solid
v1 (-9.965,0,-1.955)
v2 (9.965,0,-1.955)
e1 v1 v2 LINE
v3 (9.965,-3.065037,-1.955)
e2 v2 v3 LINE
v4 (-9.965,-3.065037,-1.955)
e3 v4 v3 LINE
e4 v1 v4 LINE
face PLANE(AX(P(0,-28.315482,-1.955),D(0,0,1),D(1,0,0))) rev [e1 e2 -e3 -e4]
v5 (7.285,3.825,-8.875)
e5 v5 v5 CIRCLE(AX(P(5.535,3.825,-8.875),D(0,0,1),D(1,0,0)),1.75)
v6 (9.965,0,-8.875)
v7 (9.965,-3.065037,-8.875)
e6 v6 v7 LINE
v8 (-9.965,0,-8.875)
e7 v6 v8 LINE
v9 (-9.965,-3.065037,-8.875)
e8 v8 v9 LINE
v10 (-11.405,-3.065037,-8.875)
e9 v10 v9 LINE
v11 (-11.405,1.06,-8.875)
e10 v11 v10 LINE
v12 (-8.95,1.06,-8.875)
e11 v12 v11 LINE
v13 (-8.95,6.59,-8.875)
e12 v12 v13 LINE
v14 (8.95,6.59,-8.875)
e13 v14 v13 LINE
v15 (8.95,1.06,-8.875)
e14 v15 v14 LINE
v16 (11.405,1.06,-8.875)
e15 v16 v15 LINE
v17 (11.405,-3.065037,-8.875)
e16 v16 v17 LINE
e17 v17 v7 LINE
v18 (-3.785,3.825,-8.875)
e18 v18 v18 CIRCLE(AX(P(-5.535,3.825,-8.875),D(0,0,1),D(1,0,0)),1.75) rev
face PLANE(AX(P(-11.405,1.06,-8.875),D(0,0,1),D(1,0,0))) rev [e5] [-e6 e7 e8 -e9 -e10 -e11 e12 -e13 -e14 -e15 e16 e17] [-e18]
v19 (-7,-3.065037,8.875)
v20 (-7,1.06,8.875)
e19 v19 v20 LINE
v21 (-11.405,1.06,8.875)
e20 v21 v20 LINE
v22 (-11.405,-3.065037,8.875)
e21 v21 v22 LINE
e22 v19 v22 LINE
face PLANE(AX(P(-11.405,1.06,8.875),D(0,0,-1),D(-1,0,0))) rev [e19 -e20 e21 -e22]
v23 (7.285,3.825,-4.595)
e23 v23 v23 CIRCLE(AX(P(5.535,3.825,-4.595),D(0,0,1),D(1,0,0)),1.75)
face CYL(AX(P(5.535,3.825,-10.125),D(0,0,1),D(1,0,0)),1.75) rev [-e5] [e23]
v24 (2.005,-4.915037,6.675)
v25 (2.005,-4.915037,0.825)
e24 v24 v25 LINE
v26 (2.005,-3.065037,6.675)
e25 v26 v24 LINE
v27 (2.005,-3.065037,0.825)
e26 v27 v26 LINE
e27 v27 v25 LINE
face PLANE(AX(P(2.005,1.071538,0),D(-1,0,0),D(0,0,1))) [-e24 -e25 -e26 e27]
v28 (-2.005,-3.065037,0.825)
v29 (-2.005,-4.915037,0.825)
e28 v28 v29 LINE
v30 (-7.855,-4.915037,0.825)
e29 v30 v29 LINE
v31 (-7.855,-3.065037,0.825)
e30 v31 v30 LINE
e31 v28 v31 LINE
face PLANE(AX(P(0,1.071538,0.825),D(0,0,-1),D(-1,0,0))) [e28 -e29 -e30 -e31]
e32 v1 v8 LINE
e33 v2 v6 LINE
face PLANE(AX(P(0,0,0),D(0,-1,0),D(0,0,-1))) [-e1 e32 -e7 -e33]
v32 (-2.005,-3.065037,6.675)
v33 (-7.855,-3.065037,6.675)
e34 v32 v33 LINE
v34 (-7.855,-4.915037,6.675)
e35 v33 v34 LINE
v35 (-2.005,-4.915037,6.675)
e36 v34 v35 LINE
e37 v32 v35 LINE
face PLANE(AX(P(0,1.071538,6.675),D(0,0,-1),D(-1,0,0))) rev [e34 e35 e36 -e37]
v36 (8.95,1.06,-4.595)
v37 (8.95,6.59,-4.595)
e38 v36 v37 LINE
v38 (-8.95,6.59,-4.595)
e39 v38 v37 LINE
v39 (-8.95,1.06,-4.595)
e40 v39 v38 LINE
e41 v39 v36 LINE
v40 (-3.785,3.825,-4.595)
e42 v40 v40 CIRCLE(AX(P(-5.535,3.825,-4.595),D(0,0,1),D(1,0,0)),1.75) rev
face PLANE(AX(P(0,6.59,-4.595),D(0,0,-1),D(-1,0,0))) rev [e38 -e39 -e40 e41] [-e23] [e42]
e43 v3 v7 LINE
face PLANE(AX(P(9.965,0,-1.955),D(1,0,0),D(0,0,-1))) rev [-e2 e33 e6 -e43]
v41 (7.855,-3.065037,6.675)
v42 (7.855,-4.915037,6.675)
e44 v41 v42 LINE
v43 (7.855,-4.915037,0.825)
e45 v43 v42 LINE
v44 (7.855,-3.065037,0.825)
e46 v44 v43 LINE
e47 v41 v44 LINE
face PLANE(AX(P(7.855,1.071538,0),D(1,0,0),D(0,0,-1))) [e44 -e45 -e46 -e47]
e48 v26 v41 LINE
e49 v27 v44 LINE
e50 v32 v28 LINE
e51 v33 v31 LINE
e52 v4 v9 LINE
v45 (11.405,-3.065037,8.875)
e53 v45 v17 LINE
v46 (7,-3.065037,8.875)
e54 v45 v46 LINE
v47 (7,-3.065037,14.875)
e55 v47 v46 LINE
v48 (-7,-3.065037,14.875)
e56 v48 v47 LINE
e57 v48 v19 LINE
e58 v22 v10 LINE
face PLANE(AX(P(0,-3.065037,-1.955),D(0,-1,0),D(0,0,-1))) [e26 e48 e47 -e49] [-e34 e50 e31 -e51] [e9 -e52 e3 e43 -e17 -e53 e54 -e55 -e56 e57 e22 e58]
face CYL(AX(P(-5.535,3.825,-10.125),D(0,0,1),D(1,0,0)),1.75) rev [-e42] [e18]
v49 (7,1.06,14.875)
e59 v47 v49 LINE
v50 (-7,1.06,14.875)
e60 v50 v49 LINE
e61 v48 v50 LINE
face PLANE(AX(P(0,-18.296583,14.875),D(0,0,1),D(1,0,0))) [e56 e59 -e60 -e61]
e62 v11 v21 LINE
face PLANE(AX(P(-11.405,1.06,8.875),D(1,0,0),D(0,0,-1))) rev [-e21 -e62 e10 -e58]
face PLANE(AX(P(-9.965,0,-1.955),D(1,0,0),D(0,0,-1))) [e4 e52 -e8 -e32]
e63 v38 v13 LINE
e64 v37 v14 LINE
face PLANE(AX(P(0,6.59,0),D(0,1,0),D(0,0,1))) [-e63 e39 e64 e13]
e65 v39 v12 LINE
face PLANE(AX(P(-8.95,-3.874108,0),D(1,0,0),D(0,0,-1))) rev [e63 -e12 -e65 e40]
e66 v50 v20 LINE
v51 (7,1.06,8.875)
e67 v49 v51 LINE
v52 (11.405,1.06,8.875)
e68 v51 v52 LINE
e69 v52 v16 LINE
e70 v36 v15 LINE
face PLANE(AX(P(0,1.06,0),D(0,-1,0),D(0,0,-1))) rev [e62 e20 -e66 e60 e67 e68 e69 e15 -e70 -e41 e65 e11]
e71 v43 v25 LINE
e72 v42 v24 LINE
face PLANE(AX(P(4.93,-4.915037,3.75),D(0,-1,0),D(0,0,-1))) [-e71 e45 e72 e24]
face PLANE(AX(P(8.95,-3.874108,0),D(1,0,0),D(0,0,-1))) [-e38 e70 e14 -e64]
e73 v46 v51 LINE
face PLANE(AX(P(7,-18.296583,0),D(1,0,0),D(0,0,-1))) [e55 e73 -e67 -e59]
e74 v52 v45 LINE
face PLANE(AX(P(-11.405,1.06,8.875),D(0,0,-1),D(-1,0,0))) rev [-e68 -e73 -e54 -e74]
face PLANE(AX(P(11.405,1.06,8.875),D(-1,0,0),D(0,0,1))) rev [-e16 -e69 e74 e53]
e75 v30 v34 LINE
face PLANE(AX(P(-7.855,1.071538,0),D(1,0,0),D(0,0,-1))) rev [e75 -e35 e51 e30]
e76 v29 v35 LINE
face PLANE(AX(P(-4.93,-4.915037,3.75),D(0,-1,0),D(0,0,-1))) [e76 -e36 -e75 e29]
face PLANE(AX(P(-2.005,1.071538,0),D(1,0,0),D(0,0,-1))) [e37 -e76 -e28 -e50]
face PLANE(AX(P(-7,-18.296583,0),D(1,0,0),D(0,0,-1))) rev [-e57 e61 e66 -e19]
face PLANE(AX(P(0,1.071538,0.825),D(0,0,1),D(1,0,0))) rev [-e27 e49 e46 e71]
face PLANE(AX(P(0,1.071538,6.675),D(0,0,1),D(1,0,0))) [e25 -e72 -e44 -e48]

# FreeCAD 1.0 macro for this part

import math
import FreeCAD as App
import Part
import Sketcher

V = App.Vector
Q = App.Units.Quantity

doc = App.newDocument("Part")
body = doc.addObject("PartDesign::Body", "Body")

sketch1 = body.newObject("Sketcher::SketchObject", "Sketch")
sketch1.AttachmentSupport = (doc.getObject("XZ_Plane"), [""])
sketch1.MapMode = "FlatFace"
sketch1.addGeometry([
    Part.LineSegment(V(-11.405, -8.875, 0), V(-11.405, 8.875, 0)),
    Part.LineSegment(V(-11.405, 8.875, 0), V(11.405, 8.875, 0)),
    Part.LineSegment(V(11.405, 8.875, 0), V(11.405, -8.875, 0)),
    Part.LineSegment(V(11.405, -8.875, 0), V(-11.405, -8.875, 0)),
], False)
sketch1.addConstraint([
    Sketcher.Constraint("Coincident", 0, 2, 1, 1),
    Sketcher.Constraint("Coincident", 1, 2, 2, 1),
    Sketcher.Constraint("Coincident", 2, 2, 3, 1),
    Sketcher.Constraint("Coincident", 3, 2, 0, 1),
    Sketcher.Constraint("Vertical", 0),
    Sketcher.Constraint("Horizontal", 1),
    Sketcher.Constraint("Vertical", 2),
    Sketcher.Constraint("Horizontal", 3),
    Sketcher.Constraint("Symmetric", 0, 2, 2, 2, -1, 1),
    Sketcher.Constraint("DistanceX", 1, 1, 1, 2, Q("22.81 mm")),
    Sketcher.Constraint("DistanceY", 0, 1, 0, 2, Q("17.75 mm")),
])
pad1 = body.newObject("PartDesign::Pad", "Pad")
pad1.Profile = sketch1
pad1.Length = 1.06
pad1.Reversed = True

sketch2 = body.newObject("Sketcher::SketchObject", "Sketch001")
sketch2.AttachmentSupport = (doc.getObject("XY_Plane"), [""])
sketch2.MapMode = "FlatFace"
sketch2.AttachmentOffset = App.Placement(V(0, 0, -8.875), App.Rotation())
sketch2.addGeometry([
    Part.LineSegment(V(11.405, 0, 0), V(11.405, -3.065037, 0)),
    Part.LineSegment(V(11.405, -3.065037, 0), V(9.965, -3.065037, 0)),
    Part.LineSegment(V(9.965, -3.065037, 0), V(9.965, 0, 0)),
    Part.LineSegment(V(9.965, 0, 0), V(11.405, 0, 0)),
    Part.LineSegment(V(-9.965, 0, 0), V(-9.965, -3.065037, 0)),
    Part.LineSegment(V(-9.965, -3.065037, 0), V(-11.405, -3.065037, 0)),
    Part.LineSegment(V(-11.405, -3.065037, 0), V(-11.405, 0, 0)),
    Part.LineSegment(V(-11.405, 0, 0), V(-9.965, 0, 0)),
], False)
sketch2.addConstraint([
    Sketcher.Constraint("Coincident", 0, 2, 1, 1),
    Sketcher.Constraint("Coincident", 1, 2, 2, 1),
    Sketcher.Constraint("Coincident", 2, 2, 3, 1),
    Sketcher.Constraint("Coincident", 3, 2, 0, 1),
    Sketcher.Constraint("Coincident", 4, 2, 5, 1),
    Sketcher.Constraint("Coincident", 5, 2, 6, 1),
    Sketcher.Constraint("Coincident", 6, 2, 7, 1),
    Sketcher.Constraint("Coincident", 7, 2, 4, 1),
    Sketcher.Constraint("Vertical", 0),
    Sketcher.Constraint("Horizontal", 1),
    Sketcher.Constraint("Vertical", 2),
    Sketcher.Constraint("Horizontal", 3),
    Sketcher.Constraint("Vertical", 4),
    Sketcher.Constraint("Horizontal", 5),
    Sketcher.Constraint("Vertical", 6),
    Sketcher.Constraint("Horizontal", 7),
    Sketcher.Constraint("Symmetric", 3, 2, 6, 2, -1, 1),
    Sketcher.Constraint("Symmetric", 1, 2, 4, 2, -2),
    Sketcher.Constraint("PointOnObject", 2, 2, -1),
    Sketcher.Constraint("DistanceX", 1, 2, 1, 1, Q("1.44 mm")),
    Sketcher.Constraint("DistanceX", 4, 2, 1, 2, Q("19.93 mm")),
    Sketcher.Constraint("DistanceY", 0, 2, 0, 1, Q("3.065037 mm")),
])
pad2 = body.newObject("PartDesign::Pad", "Pad001")
pad2.Profile = sketch2
pad2.Length = 6.92

sketch3 = body.newObject("Sketcher::SketchObject", "Sketch002")
sketch3.AttachmentSupport = (doc.getObject("XZ_Plane"), [""])
sketch3.MapMode = "FlatFace"
sketch3.addGeometry([
    Part.LineSegment(V(-11.405, 8.875, 0), V(-11.405, -1.955, 0)),
    Part.LineSegment(V(-11.405, -1.955, 0), V(11.405, -1.955, 0)),
    Part.LineSegment(V(11.405, -1.955, 0), V(11.405, 8.875, 0)),
    Part.LineSegment(V(11.405, 8.875, 0), V(-11.405, 8.875, 0)),
], False)
sketch3.addConstraint([
    Sketcher.Constraint("Coincident", 0, 2, 1, 1),
    Sketcher.Constraint("Coincident", 1, 2, 2, 1),
    Sketcher.Constraint("Coincident", 2, 2, 3, 1),
    Sketcher.Constraint("Coincident", 3, 2, 0, 1),
    Sketcher.Constraint("Vertical", 0),
    Sketcher.Constraint("Horizontal", 1),
    Sketcher.Constraint("Vertical", 2),
    Sketcher.Constraint("Horizontal", 3),
    Sketcher.Constraint("DistanceX", 1, 1, 1, 2, Q("22.81 mm")),
    Sketcher.Constraint("DistanceY", 0, 2, 0, 1, Q("10.83 mm")),
    Sketcher.Constraint("DistanceX", 0, 2, -1, 1, Q("11.405 mm")),
    Sketcher.Constraint("DistanceY", 0, 2, -1, 1, Q("1.955 mm")),
])
pad3 = body.newObject("PartDesign::Pad", "Pad002")
pad3.Profile = sketch3
pad3.Length = 3.065037

sketch4 = body.newObject("Sketcher::SketchObject", "Sketch003")
sketch4.AttachmentSupport = (doc.getObject("XZ_Plane"), [""])
sketch4.MapMode = "FlatFace"
sketch4.AttachmentOffset = App.Placement(V(0, 0, 3.065037), App.Rotation())
sketch4.addGeometry([
    Part.Circle(V(-4.93, 3.75, 0), V(0, 0, 1), 2.925),
    Part.Circle(V(4.93, 3.75, 0), V(0, 0, 1), 2.925),
], False)
sketch4.addConstraint([
    Sketcher.Constraint("Equal", 0, 1),
    Sketcher.Constraint("Symmetric", 0, 3, 1, 3, -2),
    Sketcher.Constraint("Diameter", 0, Q("5.85 mm")),
    Sketcher.Constraint("DistanceX", 0, 3, -1, 1, Q("4.93 mm")),
    Sketcher.Constraint("DistanceY", -1, 1, 0, 3, Q("3.75 mm")),
])
pad4 = body.newObject("PartDesign::Pad", "Pad003")
pad4.Profile = sketch4
pad4.Length = 5.85

sketch5 = body.newObject("Sketcher::SketchObject", "Sketch004")
sketch5.AttachmentSupport = (doc.getObject("XZ_Plane"), [""])
sketch5.MapMode = "FlatFace"
sketch5.AttachmentOffset = App.Placement(V(0, 0, -1.06), App.Rotation())
sketch5.addGeometry([
    Part.LineSegment(V(-11.405, -8.875, 0), V(-11.405, -4.595, 0)),
    Part.LineSegment(V(-11.405, -4.595, 0), V(11.405, -4.595, 0)),
    Part.LineSegment(V(11.405, -4.595, 0), V(11.405, -8.875, 0)),
    Part.LineSegment(V(11.405, -8.875, 0), V(-11.405, -8.875, 0)),
], False)
sketch5.addConstraint([
    Sketcher.Constraint("Coincident", 0, 2, 1, 1),
    Sketcher.Constraint("Coincident", 1, 2, 2, 1),
    Sketcher.Constraint("Coincident", 2, 2, 3, 1),
    Sketcher.Constraint("Coincident", 3, 2, 0, 1),
    Sketcher.Constraint("Vertical", 0),
    Sketcher.Constraint("Horizontal", 1),
    Sketcher.Constraint("Vertical", 2),
    Sketcher.Constraint("Horizontal", 3),
    Sketcher.Constraint("DistanceX", 1, 1, 1, 2, Q("22.81 mm")),
    Sketcher.Constraint("DistanceY", 0, 1, 0, 2, Q("4.28 mm")),
    Sketcher.Constraint("DistanceX", 0, 2, -1, 1, Q("11.405 mm")),
    Sketcher.Constraint("DistanceY", 0, 2, -1, 1, Q("4.595 mm")),
])
pad5 = body.newObject("PartDesign::Pad", "Pad004")
pad5.Profile = sketch5
pad5.Length = 5.53
pad5.Reversed = True

sketch6 = body.newObject("Sketcher::SketchObject", "Sketch005")
sketch6.AttachmentSupport = (doc.getObject("XY_Plane"), [""])
sketch6.MapMode = "FlatFace"
sketch6.AttachmentOffset = App.Placement(V(0, 0, -4.595), App.Rotation())
sketch6.addGeometry([
    Part.Circle(V(5.535, 3.825, 0), V(0, 0, 1), 1.75),
    Part.Circle(V(-5.535, 3.825, 0), V(0, 0, 1), 1.75),
], False)
sketch6.addConstraint([
    Sketcher.Constraint("Equal", 0, 1),
    Sketcher.Constraint("Symmetric", 0, 3, 1, 3, -2),
    Sketcher.Constraint("Diameter", 0, Q("3.5 mm")),
    Sketcher.Constraint("DistanceX", 1, 3, 0, 3, Q("11.07 mm")),
    Sketcher.Constraint("DistanceY", -1, 1, 0, 3, Q("3.825 mm")),
])
pocket1 = body.newObject("PartDesign::Pocket", "Pocket")
pocket1.Profile = sketch6
pocket1.Length = 5.53

sketch7 = body.newObject("Sketcher::SketchObject", "Sketch006")
sketch7.AttachmentSupport = (doc.getObject("XZ_Plane"), [""])
sketch7.MapMode = "FlatFace"
sketch7.AttachmentOffset = App.Placement(V(0, 0, -1.06), App.Rotation())
sketch7.addGeometry([
    Part.LineSegment(V(-7, 8.875, 0), V(-7, 14.875, 0)),
    Part.LineSegment(V(-7, 14.875, 0), V(7, 14.875, 0)),
    Part.LineSegment(V(7, 14.875, 0), V(7, 8.875, 0)),
    Part.LineSegment(V(7, 8.875, 0), V(-7, 8.875, 0)),
], False)
sketch7.addConstraint([
    Sketcher.Constraint("Coincident", 0, 2, 1, 1),
    Sketcher.Constraint("Coincident", 1, 2, 2, 1),
    Sketcher.Constraint("Coincident", 2, 2, 3, 1),
    Sketcher.Constraint("Coincident", 3, 2, 0, 1),
    Sketcher.Constraint("Vertical", 0),
    Sketcher.Constraint("Horizontal", 1),
    Sketcher.Constraint("Vertical", 2),
    Sketcher.Constraint("Horizontal", 3),
    Sketcher.Constraint("DistanceX", 1, 1, 1, 2, Q("14 mm")),
    Sketcher.Constraint("DistanceY", 0, 1, 0, 2, Q("6 mm")),
    Sketcher.Constraint("DistanceX", 0, 2, -1, 1, Q("7 mm")),
    Sketcher.Constraint("DistanceY", -1, 1, 0, 2, Q("14.875 mm")),
])
pad6 = body.newObject("PartDesign::Pad", "Pad005")
pad6.Profile = sketch7
pad6.Length = 4.125037

sketch8 = body.newObject("Sketcher::SketchObject", "Sketch007")
sketch8.AttachmentSupport = (doc.getObject("XZ_Plane"), [""])
sketch8.MapMode = "FlatFace"
sketch8.AttachmentOffset = App.Placement(V(0, 0, 4.915037), App.Rotation())
sketch8.addGeometry([
    Part.Circle(V(-4.93, 3.75, 0), V(0, 0, 1), 2.925),
    Part.Circle(V(4.93, 3.75, 0), V(0, 0, 1), 2.925),
], False)
sketch8.addConstraint([
    Sketcher.Constraint("Equal", 0, 1),
    Sketcher.Constraint("Symmetric", 0, 3, 1, 3, -2),
    Sketcher.Constraint("Diameter", 0, Q("5.85 mm")),
    Sketcher.Constraint("DistanceX", 0, 3, -1, 1, Q("4.93 mm")),
    Sketcher.Constraint("DistanceY", -1, 1, 0, 3, Q("3.75 mm")),
])
pocket2 = body.newObject("PartDesign::Pocket", "Pocket001")
pocket2.Profile = sketch8
pocket2.Length = 4
pocket2.Reversed = True

sketch9 = body.newObject("Sketcher::SketchObject", "Sketch008")
sketch9.AttachmentSupport = (doc.getObject("XZ_Plane"), [""])
sketch9.MapMode = "FlatFace"
sketch9.AttachmentOffset = App.Placement(V(0, 0, 3.065037), App.Rotation())
sketch9.addGeometry([
    Part.ArcOfCircle(Part.Circle(V(-4.93, 3.75, 0), V(0, 0, 1), 2.925), math.radians(90), math.radians(180)),
    Part.LineSegment(V(-4.93, 6.675, 0), V(-7.855, 6.675, 0)),
    Part.LineSegment(V(-7.855, 6.675, 0), V(-7.855, 3.75, 0)),
    Part.LineSegment(V(-7.855, 0.825, 0), V(-4.93, 0.825, 0)),
    Part.ArcOfCircle(Part.Circle(V(-4.93, 3.75, 0), V(0, 0, 1), 2.925), math.radians(180), math.radians(270)),
    Part.LineSegment(V(-7.855, 3.75, 0), V(-7.855, 0.825, 0)),
    Part.LineSegment(V(-2.005, 0.825, 0), V(-2.005, 3.75, 0)),
    Part.ArcOfCircle(Part.Circle(V(-4.93, 3.75, 0), V(0, 0, 1), 2.925), math.radians(-90), math.radians(0)),
    Part.LineSegment(V(-4.93, 0.825, 0), V(-2.005, 0.825, 0)),
    Part.ArcOfCircle(Part.Circle(V(-4.93, 3.75, 0), V(0, 0, 1), 2.925), math.radians(0), math.radians(90)),
    Part.LineSegment(V(-2.005, 3.75, 0), V(-2.005, 6.675, 0)),
    Part.LineSegment(V(-2.005, 6.675, 0), V(-4.93, 6.675, 0)),
    Part.ArcOfCircle(Part.Circle(V(4.93, 3.75, 0), V(0, 0, 1), 2.925), math.radians(90), math.radians(180)),
    Part.LineSegment(V(4.93, 6.675, 0), V(2.005, 6.675, 0)),
    Part.LineSegment(V(2.005, 6.675, 0), V(2.005, 3.75, 0)),
    Part.ArcOfCircle(Part.Circle(V(4.93, 3.75, 0), V(0, 0, 1), 2.925), math.radians(180), math.radians(270)),
    Part.LineSegment(V(2.005, 3.75, 0), V(2.005, 0.825, 0)),
    Part.LineSegment(V(2.005, 0.825, 0), V(4.93, 0.825, 0)),
    Part.LineSegment(V(7.855, 0.825, 0), V(7.855, 3.75, 0)),
    Part.ArcOfCircle(Part.Circle(V(4.93, 3.75, 0), V(0, 0, 1), 2.925), math.radians(-90), math.radians(0)),
    Part.LineSegment(V(4.93, 0.825, 0), V(7.855, 0.825, 0)),
    Part.LineSegment(V(7.855, 6.675, 0), V(4.93, 6.675, 0)),
    Part.ArcOfCircle(Part.Circle(V(4.93, 3.75, 0), V(0, 0, 1), 2.925), math.radians(0), math.radians(90)),
    Part.LineSegment(V(7.855, 3.75, 0), V(7.855, 6.675, 0)),
], False)
sketch9.addConstraint([
    Sketcher.Constraint("Tangent", 0, 1, 1, 1),
    Sketcher.Constraint("Coincident", 1, 2, 2, 1),
    Sketcher.Constraint("Tangent", 2, 2, 0, 2),
    Sketcher.Constraint("Tangent", 3, 2, 4, 2),
    Sketcher.Constraint("Tangent", 4, 1, 5, 1),
    Sketcher.Constraint("Coincident", 5, 2, 3, 1),
    Sketcher.Constraint("Tangent", 6, 2, 7, 2),
    Sketcher.Constraint("Tangent", 7, 1, 8, 1),
    Sketcher.Constraint("Coincident", 8, 2, 6, 1),
    Sketcher.Constraint("Tangent", 9, 1, 10, 1),
    Sketcher.Constraint("Coincident", 10, 2, 11, 1),
    Sketcher.Constraint("Tangent", 11, 2, 9, 2),
    Sketcher.Constraint("Tangent", 12, 1, 13, 1),
    Sketcher.Constraint("Coincident", 13, 2, 14, 1),
    Sketcher.Constraint("Tangent", 14, 2, 12, 2),
    Sketcher.Constraint("Tangent", 15, 1, 16, 1),
    Sketcher.Constraint("Coincident", 16, 2, 17, 1),
    Sketcher.Constraint("Tangent", 17, 2, 15, 2),
    Sketcher.Constraint("Tangent", 18, 2, 19, 2),
    Sketcher.Constraint("Tangent", 19, 1, 20, 1),
    Sketcher.Constraint("Coincident", 20, 2, 18, 1),
    Sketcher.Constraint("Tangent", 21, 2, 22, 2),
    Sketcher.Constraint("Tangent", 22, 1, 23, 1),
    Sketcher.Constraint("Coincident", 23, 2, 21, 1),
    Sketcher.Constraint("Horizontal", 1),
    Sketcher.Constraint("Vertical", 2),
    Sketcher.Constraint("Horizontal", 3),
    Sketcher.Constraint("Vertical", 5),
    Sketcher.Constraint("Vertical", 6),
    Sketcher.Constraint("Horizontal", 8),
    Sketcher.Constraint("Vertical", 10),
    Sketcher.Constraint("Horizontal", 11),
    Sketcher.Constraint("Horizontal", 13),
    Sketcher.Constraint("Vertical", 14),
    Sketcher.Constraint("Vertical", 16),
    Sketcher.Constraint("Horizontal", 17),
    Sketcher.Constraint("Vertical", 18),
    Sketcher.Constraint("Horizontal", 20),
    Sketcher.Constraint("Horizontal", 21),
    Sketcher.Constraint("Vertical", 23),
    Sketcher.Constraint("Coincident", 4, 3, 0, 3),
    Sketcher.Constraint("Coincident", 7, 3, 0, 3),
    Sketcher.Constraint("Coincident", 9, 3, 0, 3),
    Sketcher.Constraint("Coincident", 15, 3, 12, 3),
    Sketcher.Constraint("Coincident", 19, 3, 12, 3),
    Sketcher.Constraint("Coincident", 22, 3, 12, 3),
    Sketcher.Constraint("Equal", 0, 4),
    Sketcher.Constraint("Equal", 4, 7),
    Sketcher.Constraint("Equal", 7, 9),
    Sketcher.Constraint("Equal", 9, 12),
    Sketcher.Constraint("Equal", 12, 15),
    Sketcher.Constraint("Equal", 15, 19),
    Sketcher.Constraint("Equal", 19, 22),
    Sketcher.Constraint("Symmetric", 0, 3, 12, 3, -2),
    Sketcher.Constraint("Radius", 0, Q("2.925 mm")),
    Sketcher.Constraint("DistanceX", 0, 3, -1, 1, Q("4.93 mm")),
    Sketcher.Constraint("DistanceY", -1, 1, 0, 3, Q("3.75 mm")),
])
pad7 = body.newObject("PartDesign::Pad", "Pad006")
pad7.Profile = sketch9
pad7.Length = 1.85

sketch10 = body.newObject("Sketcher::SketchObject", "Sketch009")
sketch10.AttachmentSupport = (doc.getObject("XZ_Plane"), [""])
sketch10.MapMode = "FlatFace"
sketch10.AttachmentOffset = App.Placement(V(0, 0, -6.59), App.Rotation())
sketch10.addGeometry([
    Part.LineSegment(V(-11.405, -8.875, 0), V(-11.405, -4.595, 0)),
    Part.LineSegment(V(-11.405, -4.595, 0), V(-8.95, -4.595, 0)),
    Part.LineSegment(V(-8.95, -4.595, 0), V(-8.95, -8.875, 0)),
    Part.LineSegment(V(-8.95, -8.875, 0), V(-11.405, -8.875, 0)),
    Part.LineSegment(V(8.95, -8.875, 0), V(8.95, -4.595, 0)),
    Part.LineSegment(V(8.95, -4.595, 0), V(11.405, -4.595, 0)),
    Part.LineSegment(V(11.405, -4.595, 0), V(11.405, -8.875, 0)),
    Part.LineSegment(V(11.405, -8.875, 0), V(8.95, -8.875, 0)),
], False)
sketch10.addConstraint([
    Sketcher.Constraint("Coincident", 0, 2, 1, 1),
    Sketcher.Constraint("Coincident", 1, 2, 2, 1),
    Sketcher.Constraint("Coincident", 2, 2, 3, 1),
    Sketcher.Constraint("Coincident", 3, 2, 0, 1),
    Sketcher.Constraint("Coincident", 4, 2, 5, 1),
    Sketcher.Constraint("Coincident", 5, 2, 6, 1),
    Sketcher.Constraint("Coincident", 6, 2, 7, 1),
    Sketcher.Constraint("Coincident", 7, 2, 4, 1),
    Sketcher.Constraint("Vertical", 0),
    Sketcher.Constraint("Horizontal", 1),
    Sketcher.Constraint("Vertical", 2),
    Sketcher.Constraint("Horizontal", 3),
    Sketcher.Constraint("Vertical", 4),
    Sketcher.Constraint("Horizontal", 5),
    Sketcher.Constraint("Vertical", 6),
    Sketcher.Constraint("Horizontal", 7),
    Sketcher.Constraint("Symmetric", 1, 2, 4, 2, -2),
    Sketcher.Constraint("Symmetric", 3, 2, 6, 2, -2),
    Sketcher.Constraint("DistanceY", 0, 1, 0, 2, Q("4.28 mm")),
    Sketcher.Constraint("DistanceX", 1, 2, 4, 2, Q("17.9 mm")),
    Sketcher.Constraint("DistanceX", 1, 1, 1, 2, Q("2.455 mm")),
    Sketcher.Constraint("DistanceY", 0, 2, -1, 1, Q("4.595 mm")),
])
pocket3 = body.newObject("PartDesign::Pocket", "Pocket002")
pocket3.Profile = sketch10
pocket3.Length = 5.53
pocket3.Reversed = True

doc.recompute()
